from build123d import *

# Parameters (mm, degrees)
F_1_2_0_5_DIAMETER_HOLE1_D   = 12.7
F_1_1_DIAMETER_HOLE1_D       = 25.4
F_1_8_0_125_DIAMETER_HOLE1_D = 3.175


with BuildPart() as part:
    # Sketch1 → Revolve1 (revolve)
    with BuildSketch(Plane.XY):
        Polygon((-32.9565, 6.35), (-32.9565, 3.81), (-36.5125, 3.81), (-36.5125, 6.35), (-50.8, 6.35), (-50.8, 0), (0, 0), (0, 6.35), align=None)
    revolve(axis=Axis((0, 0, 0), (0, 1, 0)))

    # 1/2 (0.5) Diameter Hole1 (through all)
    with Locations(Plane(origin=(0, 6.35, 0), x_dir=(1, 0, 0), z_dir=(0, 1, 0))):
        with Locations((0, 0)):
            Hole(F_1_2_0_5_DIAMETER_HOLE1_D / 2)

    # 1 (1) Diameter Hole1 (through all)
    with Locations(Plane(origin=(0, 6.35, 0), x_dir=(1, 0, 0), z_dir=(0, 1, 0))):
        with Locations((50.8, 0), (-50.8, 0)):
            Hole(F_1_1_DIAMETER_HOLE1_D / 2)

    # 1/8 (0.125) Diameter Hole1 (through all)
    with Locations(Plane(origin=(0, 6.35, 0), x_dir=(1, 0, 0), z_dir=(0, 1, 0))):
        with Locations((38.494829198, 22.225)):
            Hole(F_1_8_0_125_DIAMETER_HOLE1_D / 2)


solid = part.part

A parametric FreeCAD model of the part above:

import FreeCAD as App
import Part
import Sketcher
from FreeCAD import Vector
Q = App.Units.Quantity

doc = App.newDocument("Part")
body = doc.addObject("PartDesign::Body", "Body")

# Sketch on XY plane
sketch1 = body.newObject("Sketcher::SketchObject", "Sketch")
sketch1.AttachmentSupport = (doc.getObject("XY_Plane"), [""])
sketch1.MapMode = "FlatFace"
sketch1.addGeometry([
    Part.LineSegment(Vector(-33, 6.3, 0), Vector(-33, 3.8, 0)),  # 0
    Part.LineSegment(Vector(-33, 3.8, 0), Vector(-36.5, 3.8, 0)),  # 1
    Part.LineSegment(Vector(-36.5, 3.8, 0), Vector(-36.5, 6.3, 0)),  # 2
    Part.LineSegment(Vector(-36.5, 6.3, 0), Vector(-50.8, 6.3, 0)),  # 3
    Part.LineSegment(Vector(-50.8, 6.3, 0), Vector(-50.8, 0, 0)),  # 4
    Part.LineSegment(Vector(-50.8, 0, 0), Vector(0, 0, 0)),  # 5
    Part.LineSegment(Vector(0, 0, 0), Vector(0, 6.3, 0)),  # 6
    Part.LineSegment(Vector(0, 6.3, 0), Vector(-33, 6.3, 0)),  # 7
], False)
sketch1.addConstraint([
    Sketcher.Constraint("Coincident", 0, 2, 1, 1),
    Sketcher.Constraint("Coincident", 1, 2, 2, 1),
    Sketcher.Constraint("Coincident", 2, 2, 3, 1),
    Sketcher.Constraint("Coincident", 3, 2, 4, 1),
    Sketcher.Constraint("Coincident", 4, 2, 5, 1),
    Sketcher.Constraint("Coincident", 5, 2, 6, 1),
    Sketcher.Constraint("Coincident", 6, 2, 7, 1),
    Sketcher.Constraint("Coincident", 7, 2, 0, 1),
    Sketcher.Constraint("Vertical", 0),
    Sketcher.Constraint("Horizontal", 1),
    Sketcher.Constraint("Vertical", 2),
    Sketcher.Constraint("Horizontal", 3),
    Sketcher.Constraint("Vertical", 4),
    Sketcher.Constraint("Horizontal", 5),
    Sketcher.Constraint("Vertical", 6),
    Sketcher.Constraint("Horizontal", 7),
    Sketcher.Constraint("Coincident", 5, 2, -1, 1),
    Sketcher.Constraint("Horizontal", 3, 2, 6, 2),
    Sketcher.Constraint("DistanceX", 5, 1, 5, 2, Q("2 in")),
    Sketcher.Constraint("DistanceY", 0, 2, 0, 1, Q("0.1 in")),
    Sketcher.Constraint("DistanceX", 1, 2, 1, 1, Q("0.14 in")),
    Sketcher.Constraint("DistanceY", 4, 2, 4, 1, Q("0.25 in")),
    Sketcher.Constraint("DistanceX", 3, 2, 3, 1, Q("0.5625 in")),
])
revolution = body.newObject("PartDesign::Revolution", "Revolution")
revolution.Profile = sketch1
revolution.ReferenceAxis = (sketch1, ["V_Axis"])
revolution.Angle = 360

# Sketch on XZ plane
sketch2 = body.newObject("Sketcher::SketchObject", "Sketch001")
sketch2.AttachmentSupport = (doc.getObject("XZ_Plane"), [""])
sketch2.MapMode = "FlatFace"
sketch2.AttachmentOffset = App.Placement(Vector(0, 0, -0.25 * 25.4), App.Rotation())
sketch2.addGeometry(Part.Circle(Vector(0, 0, 0), Vector(0, 0, 1), 6), False)
sketch2.addConstraint([
    Sketcher.Constraint("Coincident", 0, 3, -1, 1),
    Sketcher.Constraint("Diameter", 0, Q("0.5 in")),
])
doc.recompute()
hole = body.newObject("PartDesign::Hole", "Hole")
hole.Profile = sketch2
hole.ThreadType = "None"
hole.Diameter = Q("0.5 in")
hole.DepthType = "ThroughAll"
hole.Reversed = True

# Sketch on XZ plane
sketch3 = body.newObject("Sketcher::SketchObject", "Sketch002")
sketch3.AttachmentSupport = (doc.getObject("XZ_Plane"), [""])
sketch3.MapMode = "FlatFace"
sketch3.AttachmentOffset = App.Placement(Vector(0, 0, -0.25 * 25.4), App.Rotation())
sketch3.addGeometry([
    Part.Circle(Vector(51, 0, 0), Vector(0, 0, 1), 13),
    Part.Circle(Vector(-51, 0, 0), Vector(0, 0, 1), 13),
], False)
sketch3.addConstraint([
    Sketcher.Constraint("Equal", 0, 1),
    Sketcher.Constraint("Symmetric", 0, 3, 1, 3, -1, 1),
    Sketcher.Constraint("PointOnObject", 0, 3, -1),
    Sketcher.Constraint("Diameter", 0, Q("1 in")),
    Sketcher.Constraint("DistanceX", -1, 1, 0, 3, Q("2 in")),
])
doc.recompute()
hole2 = body.newObject("PartDesign::Hole", "Hole001")
hole2.Profile = sketch3
hole2.ThreadType = "None"
hole2.Diameter = Q("1 in")
hole2.DepthType = "ThroughAll"
hole2.Reversed = True

# Sketch on XZ plane
sketch4 = body.newObject("Sketcher::SketchObject", "Sketch003")
sketch4.AttachmentSupport = (doc.getObject("XZ_Plane"), [""])
sketch4.MapMode = "FlatFace"
sketch4.AttachmentOffset = App.Placement(Vector(0, 0, -0.25 * 25.4), App.Rotation())
sketch4.addGeometry(Part.Circle(Vector(38.5, -22.2, 0), Vector(0, 0, 1), 1.6), False)
sketch4.addConstraint([
    Sketcher.Constraint("Diameter", 0, Q("0.125 in")),
    Sketcher.Constraint("DistanceY", 0, 3, -1, 1, Q("0.875 in")),
    Sketcher.Constraint("DistanceX", -1, 1, 0, 3, 38.494829),
])
doc.recompute()
hole3 = body.newObject("PartDesign::Hole", "Hole002")
hole3.Profile = sketch4
hole3.ThreadType = "None"
hole3.Diameter = Q("0.125 in")
hole3.DepthType = "ThroughAll"
hole3.Reversed = True

doc.recompute()
